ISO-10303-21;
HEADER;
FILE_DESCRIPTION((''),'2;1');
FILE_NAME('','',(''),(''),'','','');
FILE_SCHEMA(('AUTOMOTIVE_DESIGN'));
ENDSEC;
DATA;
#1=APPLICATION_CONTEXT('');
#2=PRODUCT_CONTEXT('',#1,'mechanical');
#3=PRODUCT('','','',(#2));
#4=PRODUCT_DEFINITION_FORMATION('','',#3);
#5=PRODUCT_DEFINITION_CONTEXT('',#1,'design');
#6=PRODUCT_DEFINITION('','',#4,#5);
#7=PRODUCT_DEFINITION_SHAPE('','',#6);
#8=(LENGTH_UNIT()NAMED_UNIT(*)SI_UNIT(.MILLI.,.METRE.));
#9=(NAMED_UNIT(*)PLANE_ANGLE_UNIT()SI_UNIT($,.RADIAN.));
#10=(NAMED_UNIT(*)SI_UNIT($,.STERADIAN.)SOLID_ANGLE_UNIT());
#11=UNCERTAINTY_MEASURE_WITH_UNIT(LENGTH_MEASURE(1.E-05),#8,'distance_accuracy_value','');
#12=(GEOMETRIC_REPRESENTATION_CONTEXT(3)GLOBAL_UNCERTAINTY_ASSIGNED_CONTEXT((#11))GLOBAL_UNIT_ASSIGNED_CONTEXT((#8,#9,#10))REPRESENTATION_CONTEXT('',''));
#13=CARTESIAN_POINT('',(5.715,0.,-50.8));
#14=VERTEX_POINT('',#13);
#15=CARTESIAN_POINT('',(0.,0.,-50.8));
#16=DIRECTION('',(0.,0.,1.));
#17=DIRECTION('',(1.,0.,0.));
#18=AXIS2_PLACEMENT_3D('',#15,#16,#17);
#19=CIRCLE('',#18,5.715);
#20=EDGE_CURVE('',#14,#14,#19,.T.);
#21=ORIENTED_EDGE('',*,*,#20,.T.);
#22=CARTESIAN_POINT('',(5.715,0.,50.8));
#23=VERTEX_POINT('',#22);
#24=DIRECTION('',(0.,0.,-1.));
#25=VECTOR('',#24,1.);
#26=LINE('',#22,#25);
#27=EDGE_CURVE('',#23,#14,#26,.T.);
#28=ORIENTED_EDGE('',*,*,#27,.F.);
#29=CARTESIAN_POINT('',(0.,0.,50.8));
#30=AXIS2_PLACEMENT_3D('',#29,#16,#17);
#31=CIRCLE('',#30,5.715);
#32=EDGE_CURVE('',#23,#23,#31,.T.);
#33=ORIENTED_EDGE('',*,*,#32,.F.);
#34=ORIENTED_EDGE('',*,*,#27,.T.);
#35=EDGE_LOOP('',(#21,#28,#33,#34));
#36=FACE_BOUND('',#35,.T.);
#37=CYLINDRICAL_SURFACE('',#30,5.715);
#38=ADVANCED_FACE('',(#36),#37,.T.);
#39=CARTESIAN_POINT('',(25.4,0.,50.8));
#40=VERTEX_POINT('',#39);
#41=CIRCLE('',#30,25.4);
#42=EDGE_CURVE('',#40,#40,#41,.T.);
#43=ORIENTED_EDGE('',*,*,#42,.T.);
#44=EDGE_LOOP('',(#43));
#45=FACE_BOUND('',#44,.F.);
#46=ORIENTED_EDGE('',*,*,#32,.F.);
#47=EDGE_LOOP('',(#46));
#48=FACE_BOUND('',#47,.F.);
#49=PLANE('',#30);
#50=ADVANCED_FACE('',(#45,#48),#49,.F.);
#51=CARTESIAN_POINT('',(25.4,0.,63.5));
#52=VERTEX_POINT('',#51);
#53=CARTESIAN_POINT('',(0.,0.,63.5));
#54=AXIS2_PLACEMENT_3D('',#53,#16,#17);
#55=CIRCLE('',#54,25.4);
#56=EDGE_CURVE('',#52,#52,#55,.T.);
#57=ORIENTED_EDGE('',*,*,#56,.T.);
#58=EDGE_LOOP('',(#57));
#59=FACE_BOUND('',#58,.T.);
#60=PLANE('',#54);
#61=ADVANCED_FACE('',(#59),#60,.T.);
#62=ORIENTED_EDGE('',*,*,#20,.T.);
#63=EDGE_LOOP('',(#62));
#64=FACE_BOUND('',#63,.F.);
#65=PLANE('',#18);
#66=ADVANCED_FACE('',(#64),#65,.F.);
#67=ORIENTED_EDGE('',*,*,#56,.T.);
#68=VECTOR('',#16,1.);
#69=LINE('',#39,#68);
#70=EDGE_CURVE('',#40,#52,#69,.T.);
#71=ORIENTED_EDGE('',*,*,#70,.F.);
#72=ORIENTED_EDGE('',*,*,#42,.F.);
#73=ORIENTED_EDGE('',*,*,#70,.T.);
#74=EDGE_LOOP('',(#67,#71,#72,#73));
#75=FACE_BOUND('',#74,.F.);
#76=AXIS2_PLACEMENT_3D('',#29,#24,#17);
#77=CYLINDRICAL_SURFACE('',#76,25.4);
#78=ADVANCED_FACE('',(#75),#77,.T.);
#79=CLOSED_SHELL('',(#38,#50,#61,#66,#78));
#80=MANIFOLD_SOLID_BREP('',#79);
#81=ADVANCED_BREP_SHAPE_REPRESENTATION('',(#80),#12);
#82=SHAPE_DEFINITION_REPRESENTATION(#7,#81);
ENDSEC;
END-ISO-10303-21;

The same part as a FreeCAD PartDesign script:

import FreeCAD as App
import Part
import Sketcher
Q = App.Units.Quantity

doc = App.newDocument("Part")
body = doc.addObject("PartDesign::Body", "Body")

# Sketch on XY plane
sketch1 = doc.addObject("Sketcher::SketchObject", "Sketch")
body.addObject(sketch1)
sketch1.AttachmentSupport = (doc.XY_Plane, [""])
sketch1.MapMode = "FlatFace"
sketch1.AttachmentOffset = App.Placement(App.Vector(0, 0, 2 * 25.4), App.Rotation())
sketch1.addGeometry(Part.Circle(App.Vector(0, 0, 0), App.Vector(0, 0, 1), 6), False)
sketch1.addConstraint([
    Sketcher.Constraint("Coincident", 0, 3, -1, 1),
    Sketcher.Constraint("Diameter", 0, Q("0.45 in")),
])
pad1 = doc.addObject("PartDesign::Pad", "Pad")
body.addObject(pad1)
pad1.Profile = sketch1
pad1.Length = Q("4 in")
pad1.Reversed = True

# Sketch on XY plane
sketch2 = doc.addObject("Sketcher::SketchObject", "Sketch001")
body.addObject(sketch2)
sketch2.AttachmentSupport = (doc.XY_Plane, [""])
sketch2.MapMode = "FlatFace"
sketch2.AttachmentOffset = App.Placement(App.Vector(0, 0, 2 * 25.4), App.Rotation())
sketch2.addGeometry(Part.Circle(App.Vector(0, 0, 0), App.Vector(0, 0, 1), 25), False)
sketch2.addConstraint([
    Sketcher.Constraint("Coincident", 0, 3, -1, 1),
    Sketcher.Constraint("Diameter", 0, Q("2 in")),
])
pad2 = doc.addObject("PartDesign::Pad", "Pad001")
body.addObject(pad2)
pad2.Profile = sketch2
pad2.Length = Q("0.5 in")

doc.recompute()
